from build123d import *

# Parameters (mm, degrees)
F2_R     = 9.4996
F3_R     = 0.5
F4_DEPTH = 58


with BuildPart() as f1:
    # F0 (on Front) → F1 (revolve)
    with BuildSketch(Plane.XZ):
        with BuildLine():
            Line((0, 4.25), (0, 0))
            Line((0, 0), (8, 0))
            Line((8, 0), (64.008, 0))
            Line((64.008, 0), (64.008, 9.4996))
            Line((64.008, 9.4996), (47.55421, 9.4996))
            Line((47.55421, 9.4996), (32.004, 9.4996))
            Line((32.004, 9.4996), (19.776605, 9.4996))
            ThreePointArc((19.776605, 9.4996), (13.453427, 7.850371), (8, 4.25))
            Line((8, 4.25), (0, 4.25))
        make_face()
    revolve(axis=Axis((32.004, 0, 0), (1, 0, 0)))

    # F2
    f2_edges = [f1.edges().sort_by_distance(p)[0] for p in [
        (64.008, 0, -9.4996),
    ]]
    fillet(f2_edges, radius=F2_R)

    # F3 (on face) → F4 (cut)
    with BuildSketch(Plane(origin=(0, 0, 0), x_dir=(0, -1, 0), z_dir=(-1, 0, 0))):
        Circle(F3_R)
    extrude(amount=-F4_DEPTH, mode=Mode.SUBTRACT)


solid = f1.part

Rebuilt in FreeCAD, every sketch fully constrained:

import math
import FreeCAD as App
import Part
import Sketcher

V = App.Vector


def edges_at(feature, points):
    """Names of the edges that pass closest to the given points."""
    edges = feature.Shape.Edges
    near = lambda p: min(range(len(edges)), key=lambda i: edges[i].distToShape(Part.Vertex(*p))[0])
    return sorted({f"Edge{near(p) + 1}" for p in points})

doc = App.newDocument("Part")
body = doc.addObject("PartDesign::Body", "Body")

# Sketch on XZ plane
sketch1 = body.newObject("Sketcher::SketchObject", "Sketch")
sketch1.AttachmentSupport = (doc.getObject("XZ_Plane"), [""])
sketch1.MapMode = "FlatFace"
sketch1.addGeometry(Part.LineSegment(V(0, 4.2, 0), V(0, 0, 0)), False)
sketch1.addGeometry(Part.LineSegment(V(0, 0, 0), V(64, 0, 0)), False)
sketch1.addGeometry(Part.LineSegment(V(64, 0, 0), V(64, 9.5, 0)), False)
sketch1.addGeometry(Part.LineSegment(V(64, 9.5, 0), V(19.8, 9.5, 0)), False)
sketch1.addGeometry(Part.ArcOfCircle(Part.Circle(V(21.6, -10.4, 0), V(0, 0, 1), 20), math.radians(95), math.radians(133)), False)
sketch1.addGeometry(Part.LineSegment(V(8, 4.2, 0), V(0, 4.2, 0)), False)
sketch1.addConstraint(Sketcher.Constraint("Coincident", 0, 2, 1, 1))
sketch1.addConstraint(Sketcher.Constraint("Coincident", 1, 2, 2, 1))
sketch1.addConstraint(Sketcher.Constraint("Coincident", 2, 2, 3, 1))
sketch1.addConstraint(Sketcher.Constraint("Coincident", 3, 2, 4, 1))
sketch1.addConstraint(Sketcher.Constraint("Coincident", 4, 2, 5, 1))
sketch1.addConstraint(Sketcher.Constraint("Coincident", 5, 2, 0, 1))
sketch1.addConstraint(Sketcher.Constraint("Vertical", 0))
sketch1.addConstraint(Sketcher.Constraint("Horizontal", 1))
sketch1.addConstraint(Sketcher.Constraint("Vertical", 2))
sketch1.addConstraint(Sketcher.Constraint("Horizontal", 3))
sketch1.addConstraint(Sketcher.Constraint("Horizontal", 5))
sketch1.addConstraint(Sketcher.Constraint("Coincident", 0, 2, -1, 1))
sketch1.addConstraint(Sketcher.Constraint("DistanceX", 5, 2, 5, 1, 8.0))
sketch1.addConstraint(Sketcher.Constraint("DistanceY", 0, 2, 0, 1, 4.25))
sketch1.addConstraint(Sketcher.Constraint("DistanceX", 1, 1, 1, 2, 64.008))
sketch1.addConstraint(Sketcher.Constraint("DistanceY", 2, 1, 2, 2, 9.4996))
sketch1.addConstraint(Sketcher.Constraint("Radius", 4, 19.989796))
sketch1.addConstraint(Sketcher.Constraint("DistanceX", 3, 2, 3, 1, 44.231395))
revolution = body.newObject("PartDesign::Revolution", "Revolution")
revolution.Profile = sketch1
revolution.ReferenceAxis = (sketch1, ["H_Axis"])
revolution.Angle = 360
doc.recompute()

fillet = body.newObject("PartDesign::Fillet", "Fillet")
fillet.Base = (revolution, edges_at(revolution, [(64.008, 0, -9.5)]))
fillet.Radius = 9.4996

# Sketch on YZ plane
sketch2 = body.newObject("Sketcher::SketchObject", "Sketch001")
sketch2.AttachmentSupport = (doc.getObject("YZ_Plane"), [""])
sketch2.MapMode = "FlatFace"
sketch2.addGeometry(Part.Circle(V(0, 0, 0), V(0, 0, 1), 0.5), False)
sketch2.addConstraint(Sketcher.Constraint("Coincident", 0, 3, -1, 1))
sketch2.addConstraint(Sketcher.Constraint("Diameter", 0, 1.0))
pocket1 = body.newObject("PartDesign::Pocket", "Pocket")
pocket1.Profile = sketch2
pocket1.Length = 58
pocket1.Reversed = True

doc.recompute()
